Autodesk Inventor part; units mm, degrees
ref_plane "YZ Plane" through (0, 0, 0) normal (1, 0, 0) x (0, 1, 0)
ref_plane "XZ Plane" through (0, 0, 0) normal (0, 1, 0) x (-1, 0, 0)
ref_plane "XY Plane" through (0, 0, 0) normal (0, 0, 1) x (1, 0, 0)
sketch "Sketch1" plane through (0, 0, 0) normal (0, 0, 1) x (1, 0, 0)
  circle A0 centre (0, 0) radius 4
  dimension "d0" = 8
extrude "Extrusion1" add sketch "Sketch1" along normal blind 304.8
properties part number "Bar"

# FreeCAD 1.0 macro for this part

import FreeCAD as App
import Part
import Sketcher
Q = App.Units.Quantity

doc = App.newDocument("Part")
body = doc.addObject("PartDesign::Body", "Body")

sketch1 = body.newObject("Sketcher::SketchObject", "Sketch")
sketch1.AttachmentSupport = (doc.getObject("XY_Plane"), [""])
sketch1.MapMode = "FlatFace"
sketch1.addGeometry(Part.Circle(App.Vector(0, 0, 0), App.Vector(0, 0, 1), 4), False)
sketch1.addConstraint([
    Sketcher.Constraint("Coincident", 0, 3, -1, 1),
    Sketcher.Constraint("Diameter", 0, Q("8 mm")),
])
pad1 = body.newObject("PartDesign::Pad", "Pad")
pad1.Profile = sketch1
pad1.Length = 304.8

doc.recompute()
